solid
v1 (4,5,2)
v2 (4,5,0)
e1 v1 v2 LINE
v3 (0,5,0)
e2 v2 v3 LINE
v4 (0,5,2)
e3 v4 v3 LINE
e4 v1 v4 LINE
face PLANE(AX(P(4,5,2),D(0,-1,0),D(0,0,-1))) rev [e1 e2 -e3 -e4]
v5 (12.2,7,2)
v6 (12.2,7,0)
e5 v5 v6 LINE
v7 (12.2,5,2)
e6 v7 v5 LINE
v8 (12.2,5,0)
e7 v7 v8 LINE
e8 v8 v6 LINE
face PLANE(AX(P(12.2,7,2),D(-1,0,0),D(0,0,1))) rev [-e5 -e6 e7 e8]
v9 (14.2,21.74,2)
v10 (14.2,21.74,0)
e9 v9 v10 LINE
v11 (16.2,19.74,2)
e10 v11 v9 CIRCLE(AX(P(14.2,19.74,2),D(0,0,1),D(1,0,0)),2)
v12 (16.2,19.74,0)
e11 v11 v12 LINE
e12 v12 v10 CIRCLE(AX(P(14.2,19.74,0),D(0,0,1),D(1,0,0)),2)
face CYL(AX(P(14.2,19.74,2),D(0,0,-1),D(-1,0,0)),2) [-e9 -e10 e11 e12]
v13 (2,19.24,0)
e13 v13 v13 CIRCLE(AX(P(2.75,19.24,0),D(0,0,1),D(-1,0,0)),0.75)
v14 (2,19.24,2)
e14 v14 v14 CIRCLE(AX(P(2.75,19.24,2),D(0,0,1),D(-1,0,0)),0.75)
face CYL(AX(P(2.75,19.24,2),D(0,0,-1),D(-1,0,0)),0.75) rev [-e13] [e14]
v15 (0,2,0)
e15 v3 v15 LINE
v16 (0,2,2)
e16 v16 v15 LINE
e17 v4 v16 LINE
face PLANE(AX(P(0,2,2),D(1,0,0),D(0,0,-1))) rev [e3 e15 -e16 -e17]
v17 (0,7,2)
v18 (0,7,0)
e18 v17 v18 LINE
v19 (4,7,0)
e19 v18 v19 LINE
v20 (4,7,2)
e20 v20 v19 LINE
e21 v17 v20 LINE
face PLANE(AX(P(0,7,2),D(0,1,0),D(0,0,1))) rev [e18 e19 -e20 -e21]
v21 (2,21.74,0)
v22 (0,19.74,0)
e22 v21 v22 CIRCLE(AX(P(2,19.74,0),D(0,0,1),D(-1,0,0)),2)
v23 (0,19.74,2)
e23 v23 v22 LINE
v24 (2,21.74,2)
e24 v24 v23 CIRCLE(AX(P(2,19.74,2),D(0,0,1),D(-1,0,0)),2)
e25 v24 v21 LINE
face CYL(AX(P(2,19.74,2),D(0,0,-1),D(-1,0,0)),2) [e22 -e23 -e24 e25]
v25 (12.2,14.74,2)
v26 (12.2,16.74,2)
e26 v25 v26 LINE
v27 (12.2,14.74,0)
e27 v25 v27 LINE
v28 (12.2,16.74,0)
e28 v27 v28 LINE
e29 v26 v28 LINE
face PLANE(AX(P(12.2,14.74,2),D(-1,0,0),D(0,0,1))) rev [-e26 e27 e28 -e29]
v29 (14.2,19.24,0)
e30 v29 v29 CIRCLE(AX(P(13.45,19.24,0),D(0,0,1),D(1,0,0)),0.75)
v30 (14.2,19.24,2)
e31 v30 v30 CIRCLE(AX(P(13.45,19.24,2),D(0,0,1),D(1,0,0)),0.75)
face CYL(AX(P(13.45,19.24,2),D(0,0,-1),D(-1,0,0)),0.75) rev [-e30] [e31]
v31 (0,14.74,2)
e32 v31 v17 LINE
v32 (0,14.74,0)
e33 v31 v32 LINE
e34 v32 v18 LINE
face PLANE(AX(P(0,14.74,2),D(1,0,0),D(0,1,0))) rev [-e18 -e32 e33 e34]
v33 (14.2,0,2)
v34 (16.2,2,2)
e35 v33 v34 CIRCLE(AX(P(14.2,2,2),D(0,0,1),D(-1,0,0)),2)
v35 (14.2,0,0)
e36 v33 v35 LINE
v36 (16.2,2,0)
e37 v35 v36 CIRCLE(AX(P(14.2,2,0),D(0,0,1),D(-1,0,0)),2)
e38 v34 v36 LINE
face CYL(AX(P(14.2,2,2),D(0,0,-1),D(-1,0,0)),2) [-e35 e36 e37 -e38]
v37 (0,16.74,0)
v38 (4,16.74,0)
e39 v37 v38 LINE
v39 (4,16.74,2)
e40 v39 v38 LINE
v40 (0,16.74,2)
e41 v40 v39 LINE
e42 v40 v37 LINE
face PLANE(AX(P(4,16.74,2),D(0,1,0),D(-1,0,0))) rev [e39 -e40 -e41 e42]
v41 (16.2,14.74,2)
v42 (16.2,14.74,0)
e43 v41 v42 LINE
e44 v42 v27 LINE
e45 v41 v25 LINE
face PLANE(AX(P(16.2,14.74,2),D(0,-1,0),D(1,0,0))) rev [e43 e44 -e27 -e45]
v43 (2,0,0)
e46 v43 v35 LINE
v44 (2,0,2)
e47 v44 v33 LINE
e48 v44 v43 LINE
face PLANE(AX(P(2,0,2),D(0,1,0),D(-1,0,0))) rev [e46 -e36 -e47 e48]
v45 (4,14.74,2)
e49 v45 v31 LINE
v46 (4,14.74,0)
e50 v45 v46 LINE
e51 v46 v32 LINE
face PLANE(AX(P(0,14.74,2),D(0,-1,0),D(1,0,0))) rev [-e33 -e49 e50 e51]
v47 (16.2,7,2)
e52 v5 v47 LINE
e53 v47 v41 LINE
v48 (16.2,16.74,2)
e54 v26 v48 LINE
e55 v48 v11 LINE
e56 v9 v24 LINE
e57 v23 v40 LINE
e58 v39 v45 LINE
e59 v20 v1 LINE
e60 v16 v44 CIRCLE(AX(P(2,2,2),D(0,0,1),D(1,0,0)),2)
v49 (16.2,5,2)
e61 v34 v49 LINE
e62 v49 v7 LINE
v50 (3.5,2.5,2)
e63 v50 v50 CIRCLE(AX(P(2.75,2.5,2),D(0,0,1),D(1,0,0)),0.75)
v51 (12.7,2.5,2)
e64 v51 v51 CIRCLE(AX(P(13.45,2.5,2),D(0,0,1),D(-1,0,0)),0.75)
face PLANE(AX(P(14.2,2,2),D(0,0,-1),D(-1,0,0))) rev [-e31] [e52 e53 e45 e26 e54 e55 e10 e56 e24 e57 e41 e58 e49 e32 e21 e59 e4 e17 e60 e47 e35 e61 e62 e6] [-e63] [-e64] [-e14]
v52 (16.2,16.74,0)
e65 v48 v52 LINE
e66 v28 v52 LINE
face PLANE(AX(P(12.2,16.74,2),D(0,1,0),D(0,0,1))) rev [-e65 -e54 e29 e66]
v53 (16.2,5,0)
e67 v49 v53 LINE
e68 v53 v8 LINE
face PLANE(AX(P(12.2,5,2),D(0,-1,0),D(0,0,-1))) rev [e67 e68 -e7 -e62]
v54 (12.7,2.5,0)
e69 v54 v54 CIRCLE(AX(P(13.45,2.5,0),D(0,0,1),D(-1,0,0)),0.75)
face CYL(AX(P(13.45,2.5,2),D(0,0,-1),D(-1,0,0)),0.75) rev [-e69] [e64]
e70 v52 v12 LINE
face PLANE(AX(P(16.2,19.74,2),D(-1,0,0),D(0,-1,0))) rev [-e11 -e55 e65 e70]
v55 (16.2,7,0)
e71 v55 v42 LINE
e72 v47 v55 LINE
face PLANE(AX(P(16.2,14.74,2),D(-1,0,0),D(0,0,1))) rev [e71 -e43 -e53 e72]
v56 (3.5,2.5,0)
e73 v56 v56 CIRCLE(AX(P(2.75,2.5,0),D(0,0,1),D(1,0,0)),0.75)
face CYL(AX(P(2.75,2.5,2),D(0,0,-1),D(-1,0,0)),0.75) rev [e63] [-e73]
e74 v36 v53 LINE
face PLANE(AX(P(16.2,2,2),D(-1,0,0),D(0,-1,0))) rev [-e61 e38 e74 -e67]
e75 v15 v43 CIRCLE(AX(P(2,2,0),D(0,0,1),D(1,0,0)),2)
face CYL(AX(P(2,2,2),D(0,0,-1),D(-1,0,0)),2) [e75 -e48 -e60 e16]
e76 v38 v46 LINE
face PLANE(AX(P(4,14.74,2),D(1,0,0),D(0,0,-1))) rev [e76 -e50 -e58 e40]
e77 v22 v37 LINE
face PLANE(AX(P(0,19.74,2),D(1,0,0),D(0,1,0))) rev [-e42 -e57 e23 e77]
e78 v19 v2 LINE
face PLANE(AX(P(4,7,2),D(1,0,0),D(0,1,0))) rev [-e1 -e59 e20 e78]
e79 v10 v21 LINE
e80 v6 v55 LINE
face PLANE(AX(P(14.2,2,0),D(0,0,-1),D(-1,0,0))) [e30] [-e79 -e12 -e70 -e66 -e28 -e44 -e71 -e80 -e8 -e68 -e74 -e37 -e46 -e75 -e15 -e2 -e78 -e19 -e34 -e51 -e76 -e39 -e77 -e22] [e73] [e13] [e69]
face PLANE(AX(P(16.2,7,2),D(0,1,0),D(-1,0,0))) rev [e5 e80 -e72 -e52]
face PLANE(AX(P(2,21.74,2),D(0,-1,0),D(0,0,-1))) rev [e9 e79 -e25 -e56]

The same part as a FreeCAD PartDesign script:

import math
import FreeCAD as App
import Part
import Sketcher

V = App.Vector
Q = App.Units.Quantity

doc = App.newDocument("Part")
body = doc.addObject("PartDesign::Body", "Body")

sketch1 = body.newObject("Sketcher::SketchObject", "Sketch")
sketch1.AttachmentSupport = (doc.getObject("XY_Plane"), [""])
sketch1.MapMode = "FlatFace"
sketch1.addGeometry(Part.LineSegment(V(0, 14.7, 0), V(0, 7, 0)), False)
sketch1.addGeometry(Part.LineSegment(V(0, 7, 0), V(4, 7, 0)), False)
sketch1.addGeometry(Part.LineSegment(V(4, 7, 0), V(4, 5, 0)), False)
sketch1.addGeometry(Part.LineSegment(V(4, 5, 0), V(0, 5, 0)), False)
sketch1.addGeometry(Part.LineSegment(V(0, 5, 0), V(0, 2, 0)), False)
sketch1.addGeometry(Part.ArcOfCircle(Part.Circle(V(2, 2, 0), V(0, 0, 1), 2), math.radians(-180), math.radians(-90)), False)
sketch1.addGeometry(Part.LineSegment(V(2, 0, 0), V(14.2, 0, 0)), False)
sketch1.addGeometry(Part.ArcOfCircle(Part.Circle(V(14.2, 2, 0), V(0, 0, 1), 2), math.radians(-90), math.radians(0)), False)
sketch1.addGeometry(Part.LineSegment(V(16.2, 2, 0), V(16.2, 5, 0)), False)
sketch1.addGeometry(Part.LineSegment(V(16.2, 5, 0), V(12.2, 5, 0)), False)
sketch1.addGeometry(Part.LineSegment(V(12.2, 5, 0), V(12.2, 7, 0)), False)
sketch1.addGeometry(Part.LineSegment(V(12.2, 7, 0), V(16.2, 7, 0)), False)
sketch1.addGeometry(Part.LineSegment(V(16.2, 7, 0), V(16.2, 14.7, 0)), False)
sketch1.addGeometry(Part.LineSegment(V(16.2, 14.7, 0), V(12.2, 14.7, 0)), False)
sketch1.addGeometry(Part.LineSegment(V(12.2, 14.7, 0), V(12.2, 16.7, 0)), False)
sketch1.addGeometry(Part.LineSegment(V(12.2, 16.7, 0), V(16.2, 16.7, 0)), False)
sketch1.addGeometry(Part.LineSegment(V(16.2, 16.7, 0), V(16.2, 19.7, 0)), False)
sketch1.addGeometry(Part.ArcOfCircle(Part.Circle(V(14.2, 19.7, 0), V(0, 0, 1), 2), math.radians(0), math.radians(90)), False)
sketch1.addGeometry(Part.LineSegment(V(14.2, 21.7, 0), V(2, 21.7, 0)), False)
sketch1.addGeometry(Part.ArcOfCircle(Part.Circle(V(2, 19.7, 0), V(0, 0, 1), 2), math.radians(90), math.radians(180)), False)
sketch1.addGeometry(Part.LineSegment(V(0, 19.7, 0), V(0, 16.7, 0)), False)
sketch1.addGeometry(Part.LineSegment(V(0, 16.7, 0), V(4, 16.7, 0)), False)
sketch1.addGeometry(Part.LineSegment(V(4, 16.7, 0), V(4, 14.7, 0)), False)
sketch1.addGeometry(Part.LineSegment(V(4, 14.7, 0), V(0, 14.7, 0)), False)
sketch1.addGeometry(Part.Circle(V(2.8, 2.5, 0), V(0, 0, 1), 0.8), False)
sketch1.addGeometry(Part.Circle(V(13.4, 2.5, 0), V(0, 0, 1), 0.8), False)
sketch1.addGeometry(Part.Circle(V(2.8, 19.2, 0), V(0, 0, 1), 0.8), False)
sketch1.addGeometry(Part.Circle(V(13.4, 19.2, 0), V(0, 0, 1), 0.8), False)
sketch1.addConstraint(Sketcher.Constraint("Coincident", 0, 2, 1, 1))
sketch1.addConstraint(Sketcher.Constraint("Coincident", 1, 2, 2, 1))
sketch1.addConstraint(Sketcher.Constraint("Coincident", 2, 2, 3, 1))
sketch1.addConstraint(Sketcher.Constraint("Coincident", 3, 2, 4, 1))
sketch1.addConstraint(Sketcher.Constraint("Tangent", 4, 2, 5, 1))
sketch1.addConstraint(Sketcher.Constraint("Tangent", 5, 2, 6, 1))
sketch1.addConstraint(Sketcher.Constraint("Tangent", 6, 2, 7, 1))
sketch1.addConstraint(Sketcher.Constraint("Tangent", 7, 2, 8, 1))
sketch1.addConstraint(Sketcher.Constraint("Coincident", 8, 2, 9, 1))
sketch1.addConstraint(Sketcher.Constraint("Coincident", 9, 2, 10, 1))
sketch1.addConstraint(Sketcher.Constraint("Coincident", 10, 2, 11, 1))
sketch1.addConstraint(Sketcher.Constraint("Coincident", 11, 2, 12, 1))
sketch1.addConstraint(Sketcher.Constraint("Coincident", 12, 2, 13, 1))
sketch1.addConstraint(Sketcher.Constraint("Coincident", 13, 2, 14, 1))
sketch1.addConstraint(Sketcher.Constraint("Coincident", 14, 2, 15, 1))
sketch1.addConstraint(Sketcher.Constraint("Coincident", 15, 2, 16, 1))
sketch1.addConstraint(Sketcher.Constraint("Tangent", 16, 2, 17, 1))
sketch1.addConstraint(Sketcher.Constraint("Tangent", 17, 2, 18, 1))
sketch1.addConstraint(Sketcher.Constraint("Tangent", 18, 2, 19, 1))
sketch1.addConstraint(Sketcher.Constraint("Tangent", 19, 2, 20, 1))
sketch1.addConstraint(Sketcher.Constraint("Coincident", 20, 2, 21, 1))
sketch1.addConstraint(Sketcher.Constraint("Coincident", 21, 2, 22, 1))
sketch1.addConstraint(Sketcher.Constraint("Coincident", 22, 2, 23, 1))
sketch1.addConstraint(Sketcher.Constraint("Coincident", 23, 2, 0, 1))
sketch1.addConstraint(Sketcher.Constraint("Vertical", 0))
sketch1.addConstraint(Sketcher.Constraint("Horizontal", 1))
sketch1.addConstraint(Sketcher.Constraint("Vertical", 2))
sketch1.addConstraint(Sketcher.Constraint("Horizontal", 3))
sketch1.addConstraint(Sketcher.Constraint("Vertical", 4))
sketch1.addConstraint(Sketcher.Constraint("Horizontal", 6))
sketch1.addConstraint(Sketcher.Constraint("Vertical", 8))
sketch1.addConstraint(Sketcher.Constraint("Horizontal", 9))
sketch1.addConstraint(Sketcher.Constraint("Vertical", 10))
sketch1.addConstraint(Sketcher.Constraint("Horizontal", 11))
sketch1.addConstraint(Sketcher.Constraint("Vertical", 12))
sketch1.addConstraint(Sketcher.Constraint("Horizontal", 13))
sketch1.addConstraint(Sketcher.Constraint("Vertical", 14))
sketch1.addConstraint(Sketcher.Constraint("Horizontal", 15))
sketch1.addConstraint(Sketcher.Constraint("Vertical", 16))
sketch1.addConstraint(Sketcher.Constraint("Horizontal", 18))
sketch1.addConstraint(Sketcher.Constraint("Vertical", 20))
sketch1.addConstraint(Sketcher.Constraint("Horizontal", 21))
sketch1.addConstraint(Sketcher.Constraint("Vertical", 22))
sketch1.addConstraint(Sketcher.Constraint("Horizontal", 23))
sketch1.addConstraint(Sketcher.Constraint("Equal", 5, 7))
sketch1.addConstraint(Sketcher.Constraint("Equal", 7, 17))
sketch1.addConstraint(Sketcher.Constraint("Equal", 17, 19))
sketch1.addConstraint(Sketcher.Constraint("Equal", 24, 25))
sketch1.addConstraint(Sketcher.Constraint("Equal", 25, 26))
sketch1.addConstraint(Sketcher.Constraint("Equal", 26, 27))
sketch1.addConstraint(Sketcher.Constraint("PointOnObject", 0, 2, -2))
sketch1.addConstraint(Sketcher.Constraint("PointOnObject", 3, 2, -2))
sketch1.addConstraint(Sketcher.Constraint("PointOnObject", 5, 2, -1))
sketch1.addConstraint(Sketcher.Constraint("PointOnObject", 19, 2, -2))
sketch1.addConstraint(Sketcher.Constraint("Horizontal", 24, 3, 25, 3))
sketch1.addConstraint(Sketcher.Constraint("Horizontal", 26, 3, 27, 3))
sketch1.addConstraint(Sketcher.Constraint("Horizontal", 3, 2, 8, 2))
sketch1.addConstraint(Sketcher.Constraint("Horizontal", 1, 2, 10, 2))
sketch1.addConstraint(Sketcher.Constraint("Horizontal", 15, 2, 20, 2))
sketch1.addConstraint(Sketcher.Constraint("Horizontal", 13, 2, 22, 2))
sketch1.addConstraint(Sketcher.Constraint("Vertical", 7, 3, 17, 3))
sketch1.addConstraint(Sketcher.Constraint("Vertical", 24, 3, 26, 3))
sketch1.addConstraint(Sketcher.Constraint("Vertical", 25, 3, 27, 3))
sketch1.addConstraint(Sketcher.Constraint("Vertical", 8, 2, 11, 2))
sketch1.addConstraint(Sketcher.Constraint("Vertical", 10, 2, 13, 2))
sketch1.addConstraint(Sketcher.Constraint("Vertical", 2, 2, 21, 2))
sketch1.addConstraint(Sketcher.Constraint("Equal", 3, 9))
sketch1.addConstraint(Sketcher.Constraint("Equal", 10, 14))
sketch1.addConstraint(Sketcher.Constraint("Equal", 8, 16))
sketch1.addConstraint(Sketcher.Constraint("Radius", 5, Q("2 mm")))
sketch1.addConstraint(Sketcher.Constraint("Diameter", 24, Q("1.5 mm")))
sketch1.addConstraint(Sketcher.Constraint("DistanceX", 1, 1, 1, 2, Q("4 mm")))
sketch1.addConstraint(Sketcher.Constraint("DistanceY", 2, 2, 2, 1, Q("2 mm")))
sketch1.addConstraint(Sketcher.Constraint("DistanceY", 4, 2, 4, 1, Q("3 mm")))
sketch1.addConstraint(Sketcher.Constraint("DistanceX", 6, 1, 6, 2, Q("12.2 mm")))
sketch1.addConstraint(Sketcher.Constraint("DistanceY", 0, 2, 0, 1, Q("7.74 mm")))
sketch1.addConstraint(Sketcher.Constraint("DistanceY", -1, 1, 24, 3, Q("2.5 mm")))
sketch1.addConstraint(Sketcher.Constraint("DistanceX", 24, 3, 25, 3, Q("10.7 mm")))
sketch1.addConstraint(Sketcher.Constraint("DistanceY", 26, 3, 19, 3, Q("0.5 mm")))
sketch1.addConstraint(Sketcher.Constraint("DistanceX", -1, 1, 24, 3, Q("2.75 mm")))
pad1 = body.newObject("PartDesign::Pad", "Pad")
pad1.Profile = sketch1
pad1.Length = 2

doc.recompute()
